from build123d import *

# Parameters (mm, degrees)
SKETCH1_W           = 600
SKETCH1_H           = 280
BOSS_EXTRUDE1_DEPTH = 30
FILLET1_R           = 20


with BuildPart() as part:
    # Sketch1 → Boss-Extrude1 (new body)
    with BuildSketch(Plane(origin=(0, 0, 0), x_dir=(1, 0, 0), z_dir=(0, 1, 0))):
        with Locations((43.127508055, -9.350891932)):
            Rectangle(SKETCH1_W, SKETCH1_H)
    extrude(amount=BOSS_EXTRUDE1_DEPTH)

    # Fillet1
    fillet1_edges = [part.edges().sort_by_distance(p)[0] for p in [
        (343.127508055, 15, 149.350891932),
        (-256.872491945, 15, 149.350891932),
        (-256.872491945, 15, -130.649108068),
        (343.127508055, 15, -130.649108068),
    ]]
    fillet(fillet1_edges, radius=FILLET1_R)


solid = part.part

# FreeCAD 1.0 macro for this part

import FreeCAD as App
import Part
import Sketcher


def edges_at(feature, points):
    """Names of the edges that pass closest to the given points."""
    edges = feature.Shape.Edges
    near = lambda p: min(range(len(edges)), key=lambda i: edges[i].distToShape(Part.Vertex(*p))[0])
    return sorted({f"Edge{near(p) + 1}" for p in points})


def add_polygon(sketch, points):
    """Adds a closed chain of lines whose ends are joined by coincident constraints."""
    first, n = sketch.GeometryCount, len(points)
    for a, b in zip(points, points[1:] + points[:1]):
        sketch.addGeometry(Part.LineSegment(App.Vector(*a, 0), App.Vector(*b, 0)), False)
    for i in range(n):
        sketch.addConstraint(Sketcher.Constraint("Coincident", first + i, 2, first + (i + 1) % n, 1))

doc = App.newDocument("Part")
body = doc.addObject("PartDesign::Body", "Body")

# Sketch on XZ plane
sketch1 = body.newObject("Sketcher::SketchObject", "Sketch")
sketch1.AttachmentSupport = (doc.getObject("XZ_Plane"), [""])
sketch1.MapMode = "FlatFace"
add_polygon(sketch1, [(-257, -131), (-257, 149), (343, 149), (343, -131)])  # lines 0-3
sketch1.addConstraint([
    Sketcher.Constraint("Vertical", 0),
    Sketcher.Constraint("Horizontal", 1),
    Sketcher.Constraint("Vertical", 2),
    Sketcher.Constraint("Horizontal", 3),
    Sketcher.Constraint("DistanceX", 1, 1, 1, 2, 600.0),
    Sketcher.Constraint("DistanceY", 0, 1, 0, 2, 280.0),
    Sketcher.Constraint("DistanceX", 0, 2, -1, 1, 256.872492),
    Sketcher.Constraint("DistanceY", -1, 1, 0, 2, 149.350892),
])
pad1 = body.newObject("PartDesign::Pad", "Pad")
pad1.Profile = sketch1
pad1.Length = 30
pad1.Reversed = True
doc.recompute()

fillet = body.newObject("PartDesign::Fillet", "Fillet")
fillet.Base = (pad1, edges_at(pad1, [
    (343.128, 15, 149.351),
    (-256.872, 15, 149.351),
    (-256.872, 15, -130.649),
    (343.128, 15, -130.649),
]))
fillet.Radius = 20

doc.recompute()
